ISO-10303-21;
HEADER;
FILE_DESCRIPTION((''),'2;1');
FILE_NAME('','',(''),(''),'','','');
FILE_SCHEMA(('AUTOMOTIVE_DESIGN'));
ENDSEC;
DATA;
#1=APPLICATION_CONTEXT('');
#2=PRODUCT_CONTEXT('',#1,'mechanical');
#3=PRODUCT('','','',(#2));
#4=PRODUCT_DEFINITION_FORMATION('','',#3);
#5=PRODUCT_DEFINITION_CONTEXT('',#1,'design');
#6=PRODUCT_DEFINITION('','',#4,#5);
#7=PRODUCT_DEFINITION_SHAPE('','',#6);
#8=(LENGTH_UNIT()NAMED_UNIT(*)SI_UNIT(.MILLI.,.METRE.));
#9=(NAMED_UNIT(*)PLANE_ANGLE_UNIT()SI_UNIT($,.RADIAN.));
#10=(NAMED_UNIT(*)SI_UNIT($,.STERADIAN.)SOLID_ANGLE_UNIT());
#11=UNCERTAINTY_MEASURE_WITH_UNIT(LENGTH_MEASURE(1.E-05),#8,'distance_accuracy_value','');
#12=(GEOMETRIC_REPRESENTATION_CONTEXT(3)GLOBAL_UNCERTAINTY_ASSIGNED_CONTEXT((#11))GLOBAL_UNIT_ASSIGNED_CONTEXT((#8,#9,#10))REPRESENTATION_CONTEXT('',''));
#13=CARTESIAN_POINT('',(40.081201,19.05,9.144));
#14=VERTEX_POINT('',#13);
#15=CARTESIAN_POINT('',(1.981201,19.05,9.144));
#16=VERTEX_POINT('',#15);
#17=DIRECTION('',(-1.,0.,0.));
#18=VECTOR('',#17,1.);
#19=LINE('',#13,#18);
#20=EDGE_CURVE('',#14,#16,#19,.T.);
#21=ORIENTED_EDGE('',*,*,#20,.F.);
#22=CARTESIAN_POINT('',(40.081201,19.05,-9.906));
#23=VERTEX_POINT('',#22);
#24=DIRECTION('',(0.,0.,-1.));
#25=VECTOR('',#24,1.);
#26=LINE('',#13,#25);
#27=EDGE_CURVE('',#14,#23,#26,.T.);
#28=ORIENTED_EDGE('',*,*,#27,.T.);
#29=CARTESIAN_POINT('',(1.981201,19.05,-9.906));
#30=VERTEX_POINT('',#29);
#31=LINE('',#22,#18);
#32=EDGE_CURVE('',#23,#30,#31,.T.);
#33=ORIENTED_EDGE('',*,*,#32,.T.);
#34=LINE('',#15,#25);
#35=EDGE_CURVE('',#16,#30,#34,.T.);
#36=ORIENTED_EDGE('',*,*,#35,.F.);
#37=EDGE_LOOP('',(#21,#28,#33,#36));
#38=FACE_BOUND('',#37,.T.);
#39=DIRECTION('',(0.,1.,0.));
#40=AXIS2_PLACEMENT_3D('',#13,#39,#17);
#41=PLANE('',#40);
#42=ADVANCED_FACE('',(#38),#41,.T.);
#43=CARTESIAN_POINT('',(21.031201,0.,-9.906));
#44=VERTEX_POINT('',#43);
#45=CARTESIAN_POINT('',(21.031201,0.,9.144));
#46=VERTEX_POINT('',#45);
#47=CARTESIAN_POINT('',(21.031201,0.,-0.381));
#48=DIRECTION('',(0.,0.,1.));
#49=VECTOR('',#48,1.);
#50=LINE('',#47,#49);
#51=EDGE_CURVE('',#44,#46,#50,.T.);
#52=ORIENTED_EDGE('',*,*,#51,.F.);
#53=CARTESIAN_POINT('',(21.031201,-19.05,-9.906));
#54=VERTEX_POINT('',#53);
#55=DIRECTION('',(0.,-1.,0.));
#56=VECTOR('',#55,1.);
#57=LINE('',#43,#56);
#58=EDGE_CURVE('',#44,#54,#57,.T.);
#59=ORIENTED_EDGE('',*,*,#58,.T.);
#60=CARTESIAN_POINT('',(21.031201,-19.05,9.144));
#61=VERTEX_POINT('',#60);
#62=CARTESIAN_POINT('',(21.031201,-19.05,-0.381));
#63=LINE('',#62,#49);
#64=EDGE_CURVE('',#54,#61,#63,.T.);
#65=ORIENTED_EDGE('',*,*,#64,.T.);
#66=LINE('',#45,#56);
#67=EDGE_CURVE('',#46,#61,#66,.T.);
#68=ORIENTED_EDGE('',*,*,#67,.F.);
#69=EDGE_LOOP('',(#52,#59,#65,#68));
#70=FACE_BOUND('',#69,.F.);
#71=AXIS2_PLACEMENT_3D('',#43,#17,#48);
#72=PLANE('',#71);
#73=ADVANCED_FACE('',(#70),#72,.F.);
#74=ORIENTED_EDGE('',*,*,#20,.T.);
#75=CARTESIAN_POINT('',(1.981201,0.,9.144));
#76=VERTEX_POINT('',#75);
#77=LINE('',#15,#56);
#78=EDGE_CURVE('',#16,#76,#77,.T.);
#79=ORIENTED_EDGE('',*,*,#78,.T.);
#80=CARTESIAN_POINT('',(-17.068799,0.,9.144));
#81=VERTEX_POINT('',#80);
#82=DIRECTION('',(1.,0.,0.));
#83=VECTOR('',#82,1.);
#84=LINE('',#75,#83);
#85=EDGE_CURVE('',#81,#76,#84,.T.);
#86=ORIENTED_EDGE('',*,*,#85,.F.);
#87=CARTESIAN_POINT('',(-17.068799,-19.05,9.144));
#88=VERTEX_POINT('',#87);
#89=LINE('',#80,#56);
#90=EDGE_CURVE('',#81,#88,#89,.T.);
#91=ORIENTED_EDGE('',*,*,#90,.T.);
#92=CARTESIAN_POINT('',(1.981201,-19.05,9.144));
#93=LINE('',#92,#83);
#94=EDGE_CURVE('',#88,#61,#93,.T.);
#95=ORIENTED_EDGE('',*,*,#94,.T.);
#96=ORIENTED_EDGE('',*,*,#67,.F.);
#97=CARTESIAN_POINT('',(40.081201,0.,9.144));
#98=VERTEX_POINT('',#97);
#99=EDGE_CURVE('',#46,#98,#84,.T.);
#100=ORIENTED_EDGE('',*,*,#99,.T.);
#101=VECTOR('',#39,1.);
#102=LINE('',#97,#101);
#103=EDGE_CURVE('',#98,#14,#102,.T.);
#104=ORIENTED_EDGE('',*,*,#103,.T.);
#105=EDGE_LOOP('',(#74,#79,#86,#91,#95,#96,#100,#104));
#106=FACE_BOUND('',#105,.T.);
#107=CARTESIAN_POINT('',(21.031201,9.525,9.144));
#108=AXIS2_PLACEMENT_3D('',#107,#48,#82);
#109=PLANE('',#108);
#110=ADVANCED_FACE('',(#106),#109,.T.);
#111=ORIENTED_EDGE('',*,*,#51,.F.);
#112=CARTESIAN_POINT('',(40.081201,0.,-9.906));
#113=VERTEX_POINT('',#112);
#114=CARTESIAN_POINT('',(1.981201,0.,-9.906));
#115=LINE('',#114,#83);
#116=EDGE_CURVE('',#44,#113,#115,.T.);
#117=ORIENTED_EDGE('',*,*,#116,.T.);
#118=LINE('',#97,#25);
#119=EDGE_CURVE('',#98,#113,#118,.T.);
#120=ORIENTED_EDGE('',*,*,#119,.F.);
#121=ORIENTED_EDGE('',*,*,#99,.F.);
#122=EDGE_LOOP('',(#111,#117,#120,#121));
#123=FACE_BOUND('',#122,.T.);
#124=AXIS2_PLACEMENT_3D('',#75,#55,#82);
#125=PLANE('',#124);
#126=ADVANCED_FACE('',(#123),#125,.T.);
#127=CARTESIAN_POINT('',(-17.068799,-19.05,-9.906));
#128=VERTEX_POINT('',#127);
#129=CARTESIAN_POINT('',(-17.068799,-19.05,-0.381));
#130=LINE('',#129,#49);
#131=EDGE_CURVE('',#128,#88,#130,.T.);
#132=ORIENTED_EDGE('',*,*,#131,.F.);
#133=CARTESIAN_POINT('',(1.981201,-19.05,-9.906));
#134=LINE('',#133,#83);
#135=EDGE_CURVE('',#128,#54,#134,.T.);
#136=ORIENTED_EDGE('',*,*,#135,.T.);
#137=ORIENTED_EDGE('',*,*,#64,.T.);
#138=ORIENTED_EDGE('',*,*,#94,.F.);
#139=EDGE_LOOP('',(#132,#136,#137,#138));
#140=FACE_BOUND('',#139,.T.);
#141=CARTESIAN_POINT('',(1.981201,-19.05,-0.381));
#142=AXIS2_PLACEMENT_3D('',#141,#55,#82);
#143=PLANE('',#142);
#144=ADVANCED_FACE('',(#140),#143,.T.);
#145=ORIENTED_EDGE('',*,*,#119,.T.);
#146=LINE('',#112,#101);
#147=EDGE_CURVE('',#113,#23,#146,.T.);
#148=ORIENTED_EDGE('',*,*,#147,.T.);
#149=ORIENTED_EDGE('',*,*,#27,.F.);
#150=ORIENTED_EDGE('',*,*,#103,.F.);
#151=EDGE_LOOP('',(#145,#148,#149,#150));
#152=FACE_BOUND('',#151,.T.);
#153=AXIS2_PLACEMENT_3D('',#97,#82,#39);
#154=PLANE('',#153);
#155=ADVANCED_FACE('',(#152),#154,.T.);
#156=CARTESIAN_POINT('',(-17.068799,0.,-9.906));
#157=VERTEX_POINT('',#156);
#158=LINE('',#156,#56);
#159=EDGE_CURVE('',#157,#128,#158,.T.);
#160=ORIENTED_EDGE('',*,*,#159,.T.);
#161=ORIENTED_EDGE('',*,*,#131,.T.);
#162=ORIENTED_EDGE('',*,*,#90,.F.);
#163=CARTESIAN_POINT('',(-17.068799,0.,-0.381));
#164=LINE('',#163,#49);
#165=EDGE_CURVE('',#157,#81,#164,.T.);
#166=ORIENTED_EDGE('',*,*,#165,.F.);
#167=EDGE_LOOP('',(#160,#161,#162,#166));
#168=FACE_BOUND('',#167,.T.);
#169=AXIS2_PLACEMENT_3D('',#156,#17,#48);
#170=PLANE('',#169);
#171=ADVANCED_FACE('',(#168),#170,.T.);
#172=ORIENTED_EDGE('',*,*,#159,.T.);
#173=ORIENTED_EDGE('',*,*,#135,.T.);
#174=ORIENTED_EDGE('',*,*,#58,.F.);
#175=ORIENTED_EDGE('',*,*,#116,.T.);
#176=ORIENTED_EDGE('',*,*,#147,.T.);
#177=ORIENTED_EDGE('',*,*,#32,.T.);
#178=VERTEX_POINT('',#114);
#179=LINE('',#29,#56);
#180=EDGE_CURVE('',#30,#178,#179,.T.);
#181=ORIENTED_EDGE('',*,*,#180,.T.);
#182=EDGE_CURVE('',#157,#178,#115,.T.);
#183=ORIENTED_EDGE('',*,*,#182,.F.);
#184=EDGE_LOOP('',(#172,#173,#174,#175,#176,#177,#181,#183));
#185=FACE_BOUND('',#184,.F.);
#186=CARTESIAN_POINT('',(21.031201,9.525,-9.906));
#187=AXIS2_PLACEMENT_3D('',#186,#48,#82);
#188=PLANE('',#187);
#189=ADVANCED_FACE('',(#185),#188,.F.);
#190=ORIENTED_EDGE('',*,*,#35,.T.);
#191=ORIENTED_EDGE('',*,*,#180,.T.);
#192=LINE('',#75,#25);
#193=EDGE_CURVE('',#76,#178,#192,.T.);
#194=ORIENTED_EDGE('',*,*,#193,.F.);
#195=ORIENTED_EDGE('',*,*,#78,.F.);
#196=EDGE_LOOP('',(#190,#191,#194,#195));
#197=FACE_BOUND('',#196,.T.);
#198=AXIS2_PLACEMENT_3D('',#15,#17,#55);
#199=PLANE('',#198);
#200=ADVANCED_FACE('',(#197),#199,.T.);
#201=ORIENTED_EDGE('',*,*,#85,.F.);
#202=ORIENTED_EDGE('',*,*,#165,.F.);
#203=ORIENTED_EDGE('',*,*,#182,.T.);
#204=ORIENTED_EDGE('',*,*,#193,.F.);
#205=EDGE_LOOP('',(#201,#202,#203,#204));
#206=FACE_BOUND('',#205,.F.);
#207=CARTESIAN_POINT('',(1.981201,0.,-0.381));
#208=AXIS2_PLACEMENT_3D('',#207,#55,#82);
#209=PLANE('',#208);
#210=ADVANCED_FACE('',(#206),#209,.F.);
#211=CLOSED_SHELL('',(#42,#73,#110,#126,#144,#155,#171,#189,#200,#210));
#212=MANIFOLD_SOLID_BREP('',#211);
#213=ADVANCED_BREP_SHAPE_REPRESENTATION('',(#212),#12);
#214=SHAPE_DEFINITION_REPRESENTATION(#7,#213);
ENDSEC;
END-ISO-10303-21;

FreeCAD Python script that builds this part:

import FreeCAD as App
import Part
import Sketcher

V = App.Vector
Q = App.Units.Quantity


def add_polygon(sketch, points):
    """Adds a closed chain of lines whose ends are joined by coincident constraints."""
    first, n = sketch.GeometryCount, len(points)
    for a, b in zip(points, points[1:] + points[:1]):
        sketch.addGeometry(Part.LineSegment(App.Vector(*a, 0), App.Vector(*b, 0)), False)
    for i in range(n):
        sketch.addConstraint(Sketcher.Constraint("Coincident", first + i, 2, first + (i + 1) % n, 1))

doc = App.newDocument("Part")
params = doc.addObject("Spreadsheet::Sheet", "Params")
for row, (alias, value) in enumerate([
    ("sketch1_width", "1.5 in"),
    ("sketch1_height", "0.75 in"),
    ("pad1_length", "0.75 in"),
    ("sketch2_width", "1.5 in"),
    ("sketch2_height", "0.75 in"),
    ("pad2_length", "0.75 in"),
], start=1):
    params.set(f"A{row}", alias)
    params.set(f"B{row}", "=" + value)
    params.setAlias(f"B{row}", alias)

body = doc.addObject("PartDesign::Body", "Body")

# Sketch on XZ plane
sketch1 = doc.addObject("Sketcher::SketchObject", "Sketch")
body.addObject(sketch1)
sketch1.AttachmentSupport = (doc.XZ_Plane, [""])
sketch1.MapMode = "FlatFace"
add_polygon(sketch1, [(-17, 9), (-17, -10), (21, -10), (21, 9)])  # lines 0-3
sketch1.addConstraint(Sketcher.Constraint("Vertical", 0))
sketch1.addConstraint(Sketcher.Constraint("Horizontal", 1))
sketch1.addConstraint(Sketcher.Constraint("Vertical", 2))
sketch1.addConstraint(Sketcher.Constraint("Horizontal", 3))
sketch1.addConstraint(Sketcher.Constraint("DistanceX", 1, 1, 1, 2, Q("1.5 in")))
sketch1.addConstraint(Sketcher.Constraint("DistanceY", 0, 2, 0, 1, Q("0.75 in")))
sketch1.addConstraint(Sketcher.Constraint("DistanceY", 0, 2, -1, 1, Q("0.39 in")))
sketch1.addConstraint(Sketcher.Constraint("DistanceX", 0, 2, -1, 1, Q("0.672 in")))
sketch1.setExpression("Constraints[8]", "Params.sketch1_width")
sketch1.setExpression("Constraints[9]", "Params.sketch1_height")
pad1 = doc.addObject("PartDesign::Pad", "Pad")
body.addObject(pad1)
pad1.Profile = sketch1
pad1.setExpression("Length", "Params.pad1_length")

# Sketch on XY plane
sketch2 = doc.addObject("Sketcher::SketchObject", "Sketch001")
body.addObject(sketch2)
sketch2.AttachmentSupport = (doc.XY_Plane, [""])
sketch2.MapMode = "FlatFace"
sketch2.AttachmentOffset = App.Placement(V(0, 0, 0.36 * 25.4), App.Rotation())
add_polygon(sketch2, [(2, 19), (2, 0), (40, 0), (40, 19)])  # lines 0-3
sketch2.addConstraint(Sketcher.Constraint("Vertical", 0))
sketch2.addConstraint(Sketcher.Constraint("Horizontal", 1))
sketch2.addConstraint(Sketcher.Constraint("Vertical", 2))
sketch2.addConstraint(Sketcher.Constraint("Horizontal", 3))
sketch2.addConstraint(Sketcher.Constraint("PointOnObject", 0, 2, -1))
sketch2.addConstraint(Sketcher.Constraint("DistanceX", 1, 1, 1, 2, Q("1.5 in")))
sketch2.addConstraint(Sketcher.Constraint("DistanceY", 0, 2, 0, 1, Q("0.75 in")))
sketch2.addConstraint(Sketcher.Constraint("DistanceX", -1, 1, 0, 2, Q("0.078 in")))
sketch2.setExpression("Constraints[9]", "Params.sketch2_width")
sketch2.setExpression("Constraints[10]", "Params.sketch2_height")
pad2 = doc.addObject("PartDesign::Pad", "Pad001")
body.addObject(pad2)
pad2.Profile = sketch2
pad2.setExpression("Length", "Params.pad2_length")
pad2.Reversed = True

doc.recompute()
